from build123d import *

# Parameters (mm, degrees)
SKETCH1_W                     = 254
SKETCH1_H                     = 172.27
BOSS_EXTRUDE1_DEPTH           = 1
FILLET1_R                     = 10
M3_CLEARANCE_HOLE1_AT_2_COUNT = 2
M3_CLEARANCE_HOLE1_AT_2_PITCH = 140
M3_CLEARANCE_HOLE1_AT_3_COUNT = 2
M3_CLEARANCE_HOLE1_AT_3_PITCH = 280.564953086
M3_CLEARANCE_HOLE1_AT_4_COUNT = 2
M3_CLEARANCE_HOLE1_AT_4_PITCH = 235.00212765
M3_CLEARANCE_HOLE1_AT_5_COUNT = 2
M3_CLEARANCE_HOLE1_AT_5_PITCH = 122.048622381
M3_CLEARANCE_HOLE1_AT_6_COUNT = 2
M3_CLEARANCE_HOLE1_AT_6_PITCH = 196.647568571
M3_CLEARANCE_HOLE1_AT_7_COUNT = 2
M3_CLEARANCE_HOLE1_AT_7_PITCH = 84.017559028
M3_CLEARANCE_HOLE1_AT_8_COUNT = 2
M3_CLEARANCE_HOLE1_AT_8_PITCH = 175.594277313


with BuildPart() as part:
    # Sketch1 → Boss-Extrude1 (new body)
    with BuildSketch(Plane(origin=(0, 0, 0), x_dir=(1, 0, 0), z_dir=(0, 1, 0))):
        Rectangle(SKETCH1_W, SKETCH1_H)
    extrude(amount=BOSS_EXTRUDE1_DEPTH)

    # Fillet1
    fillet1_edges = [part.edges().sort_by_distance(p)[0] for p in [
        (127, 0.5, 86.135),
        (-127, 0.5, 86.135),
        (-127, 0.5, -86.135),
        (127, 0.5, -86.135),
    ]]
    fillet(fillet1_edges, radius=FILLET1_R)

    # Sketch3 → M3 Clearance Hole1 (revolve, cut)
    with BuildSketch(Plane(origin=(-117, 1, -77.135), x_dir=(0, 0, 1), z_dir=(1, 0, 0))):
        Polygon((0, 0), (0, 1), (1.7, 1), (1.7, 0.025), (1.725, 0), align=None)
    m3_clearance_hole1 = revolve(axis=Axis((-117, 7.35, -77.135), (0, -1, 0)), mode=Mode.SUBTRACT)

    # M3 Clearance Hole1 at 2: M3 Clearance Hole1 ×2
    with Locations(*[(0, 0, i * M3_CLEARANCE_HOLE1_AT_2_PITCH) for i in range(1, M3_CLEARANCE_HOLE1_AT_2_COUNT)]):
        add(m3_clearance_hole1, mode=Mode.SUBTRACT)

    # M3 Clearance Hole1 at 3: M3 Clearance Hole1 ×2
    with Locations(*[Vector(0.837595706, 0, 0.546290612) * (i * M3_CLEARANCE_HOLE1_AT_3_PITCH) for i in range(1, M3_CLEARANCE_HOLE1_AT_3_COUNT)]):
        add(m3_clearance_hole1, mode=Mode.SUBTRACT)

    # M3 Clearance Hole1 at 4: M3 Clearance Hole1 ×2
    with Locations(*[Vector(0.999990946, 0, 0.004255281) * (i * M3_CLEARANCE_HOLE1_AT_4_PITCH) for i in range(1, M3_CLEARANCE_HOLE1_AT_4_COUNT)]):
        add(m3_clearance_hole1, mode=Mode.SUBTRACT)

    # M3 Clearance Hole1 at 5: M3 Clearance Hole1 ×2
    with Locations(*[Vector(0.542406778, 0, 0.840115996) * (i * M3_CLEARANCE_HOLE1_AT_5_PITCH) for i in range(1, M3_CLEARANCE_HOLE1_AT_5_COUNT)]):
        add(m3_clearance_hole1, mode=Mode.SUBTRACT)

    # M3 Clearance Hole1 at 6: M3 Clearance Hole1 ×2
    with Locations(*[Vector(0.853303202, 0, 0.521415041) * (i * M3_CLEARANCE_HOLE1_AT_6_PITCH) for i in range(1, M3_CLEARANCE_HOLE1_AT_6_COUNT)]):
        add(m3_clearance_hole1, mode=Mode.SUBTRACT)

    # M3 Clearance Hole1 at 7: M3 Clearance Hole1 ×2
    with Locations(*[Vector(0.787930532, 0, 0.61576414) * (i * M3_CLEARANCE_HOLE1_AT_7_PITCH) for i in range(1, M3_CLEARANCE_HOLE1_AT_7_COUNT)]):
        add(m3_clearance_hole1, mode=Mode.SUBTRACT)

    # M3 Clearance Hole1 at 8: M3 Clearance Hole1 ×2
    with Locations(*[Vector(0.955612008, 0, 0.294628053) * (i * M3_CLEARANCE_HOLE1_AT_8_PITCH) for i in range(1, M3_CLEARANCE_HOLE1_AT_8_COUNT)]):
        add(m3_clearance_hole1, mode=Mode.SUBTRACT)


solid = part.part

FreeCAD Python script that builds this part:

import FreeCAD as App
import Part
import Sketcher
Q = App.Units.Quantity


def edges_at(feature, points):
    """Names of the edges that pass closest to the given points."""
    edges = feature.Shape.Edges
    near = lambda p: min(range(len(edges)), key=lambda i: edges[i].distToShape(Part.Vertex(*p))[0])
    return sorted({f"Edge{near(p) + 1}" for p in points})

doc = App.newDocument("Part")
body = doc.addObject("PartDesign::Body", "Body")

# Sketch on XZ plane
sketch1 = body.newObject("Sketcher::SketchObject", "Sketch")
sketch1.AttachmentSupport = (doc.getObject("XZ_Plane"), [""])
sketch1.MapMode = "FlatFace"
sketch1.addGeometry([
    Part.LineSegment(App.Vector(-127, -86, 0), App.Vector(-127, 86, 0)),
    Part.LineSegment(App.Vector(-127, 86, 0), App.Vector(127, 86, 0)),
    Part.LineSegment(App.Vector(127, 86, 0), App.Vector(127, -86, 0)),
    Part.LineSegment(App.Vector(127, -86, 0), App.Vector(-127, -86, 0)),
], False)
sketch1.addConstraint([
    Sketcher.Constraint("Coincident", 0, 2, 1, 1),
    Sketcher.Constraint("Coincident", 1, 2, 2, 1),
    Sketcher.Constraint("Coincident", 2, 2, 3, 1),
    Sketcher.Constraint("Coincident", 3, 2, 0, 1),
    Sketcher.Constraint("Vertical", 0),
    Sketcher.Constraint("Horizontal", 1),
    Sketcher.Constraint("Vertical", 2),
    Sketcher.Constraint("Horizontal", 3),
    Sketcher.Constraint("Symmetric", 0, 2, 2, 2, -1, 1),
    Sketcher.Constraint("DistanceX", 1, 1, 1, 2, Q("254 mm")),
    Sketcher.Constraint("DistanceY", 0, 1, 0, 2, Q("172.27 mm")),
])
pad1 = body.newObject("PartDesign::Pad", "Pad")
pad1.Profile = sketch1
pad1.Length = 1
pad1.Reversed = True
doc.recompute()

fillet = body.newObject("PartDesign::Fillet", "Fillet")
fillet.Base = (pad1, edges_at(pad1, [
    (127, 0.5, 86.135),
    (-127, 0.5, 86.135),
    (-127, 0.5, -86.135),
    (127, 0.5, -86.135),
]))
fillet.Radius = 10

# Sketch on YZ plane
sketch2 = body.newObject("Sketcher::SketchObject", "Sketch001")
sketch2.AttachmentSupport = (doc.getObject("YZ_Plane"), [""])
sketch2.MapMode = "FlatFace"
sketch2.AttachmentOffset = App.Placement(App.Vector(0, 0, -117), App.Rotation())
sketch2.addGeometry([
    Part.LineSegment(App.Vector(0, -77.135, 0), App.Vector(1, -77.135, 0)),  # 0
    Part.LineSegment(App.Vector(1, -77.135, 0), App.Vector(1, -75.41, 0)),  # 1
    Part.LineSegment(App.Vector(1, -75.41, 0), App.Vector(0.975, -75.435, 0)),  # 2
    Part.LineSegment(App.Vector(0.975, -75.435, 0), App.Vector(0, -75.435, 0)),  # 3
    Part.LineSegment(App.Vector(0, -75.435, 0), App.Vector(0, -77.135, 0)),  # 4
], False)
sketch2.addGeometry(Part.LineSegment(App.Vector(1, -77.135, 0), App.Vector(0, -77.135, 0)), True)  # axis
sketch2.addConstraint([
    Sketcher.Constraint("Coincident", 0, 2, 1, 1),
    Sketcher.Constraint("Coincident", 1, 2, 2, 1),
    Sketcher.Constraint("Coincident", 2, 2, 3, 1),
    Sketcher.Constraint("Coincident", 3, 2, 4, 1),
    Sketcher.Constraint("Coincident", 4, 2, 0, 1),
    Sketcher.Constraint("Horizontal", 0),
    Sketcher.Constraint("Vertical", 1),
    Sketcher.Constraint("Horizontal", 3),
    Sketcher.Constraint("Vertical", 4),
    Sketcher.Constraint("Horizontal", 5),
    Sketcher.Constraint("Coincident", 5, 1, 0, 2),
    Sketcher.Constraint("PointOnObject", 3, 2, -2),
    Sketcher.Constraint("PointOnObject", 5, 2, -2),
    Sketcher.Constraint("DistanceX", 0, 1, 0, 2, Q("1 mm")),
    Sketcher.Constraint("Angle", 2, Q("-135 deg")),
    Sketcher.Constraint("DistanceY", 4, 2, 4, 1, Q("1.7 mm")),
    Sketcher.Constraint("DistanceX", 3, 2, 3, 1, Q("0.975 mm")),
    Sketcher.Constraint("DistanceY", 1, 2, -1, 1, Q("75.41 mm")),
])
groove = body.newObject("PartDesign::Groove", "Groove")
groove.Profile = sketch2
groove.ReferenceAxis = (sketch2, ["Axis0"])
groove.Angle = 360
doc.recompute()

linearpattern = body.newObject("PartDesign::LinearPattern", "LinearPattern")
linearpattern.Originals = [groove]
linearpattern.Direction = (doc.getObject("Z_Axis"), [""])
linearpattern.Mode = "offset"
linearpattern.Offset = 140
linearpattern.Occurrences = 2
body.Tip = linearpattern
doc.recompute()

datumline = body.newObject("PartDesign::Line", "DatumLine")
datumline.Placement = App.Placement(App.Vector(0, 0, 0), App.Rotation(App.Vector(0, 0, 1), App.Vector(0.837595706, 0, 0.546290612)))
linearpattern2 = body.newObject("PartDesign::LinearPattern", "LinearPattern001")
linearpattern2.Originals = [groove]
linearpattern2.Direction = (datumline, [""])
linearpattern2.Mode = "offset"
linearpattern2.Offset = 280.564953
linearpattern2.Occurrences = 2
body.Tip = linearpattern2
doc.recompute()

datumline2 = body.newObject("PartDesign::Line", "DatumLine001")
datumline2.Placement = App.Placement(App.Vector(0, 0, 0), App.Rotation(App.Vector(0, 0, 1), App.Vector(0.999990946, 0, 0.004255281)))
linearpattern3 = body.newObject("PartDesign::LinearPattern", "LinearPattern002")
linearpattern3.Originals = [groove]
linearpattern3.Direction = (datumline2, [""])
linearpattern3.Mode = "offset"
linearpattern3.Offset = 235.002128
linearpattern3.Occurrences = 2
body.Tip = linearpattern3
doc.recompute()

datumline3 = body.newObject("PartDesign::Line", "DatumLine002")
datumline3.Placement = App.Placement(App.Vector(0, 0, 0), App.Rotation(App.Vector(0, 0, 1), App.Vector(0.542406778, 0, 0.840115996)))
linearpattern4 = body.newObject("PartDesign::LinearPattern", "LinearPattern003")
linearpattern4.Originals = [groove]
linearpattern4.Direction = (datumline3, [""])
linearpattern4.Mode = "offset"
linearpattern4.Offset = 122.048622
linearpattern4.Occurrences = 2
body.Tip = linearpattern4
doc.recompute()

datumline4 = body.newObject("PartDesign::Line", "DatumLine003")
datumline4.Placement = App.Placement(App.Vector(0, 0, 0), App.Rotation(App.Vector(0, 0, 1), App.Vector(0.853303202, 0, 0.521415041)))
linearpattern5 = body.newObject("PartDesign::LinearPattern", "LinearPattern004")
linearpattern5.Originals = [groove]
linearpattern5.Direction = (datumline4, [""])
linearpattern5.Mode = "offset"
linearpattern5.Offset = 196.647569
linearpattern5.Occurrences = 2
body.Tip = linearpattern5
doc.recompute()

datumline5 = body.newObject("PartDesign::Line", "DatumLine004")
datumline5.Placement = App.Placement(App.Vector(0, 0, 0), App.Rotation(App.Vector(0, 0, 1), App.Vector(0.787930532, 0, 0.61576414)))
linearpattern6 = body.newObject("PartDesign::LinearPattern", "LinearPattern005")
linearpattern6.Originals = [groove]
linearpattern6.Direction = (datumline5, [""])
linearpattern6.Mode = "offset"
linearpattern6.Offset = 84.017559
linearpattern6.Occurrences = 2
body.Tip = linearpattern6
doc.recompute()

datumline6 = body.newObject("PartDesign::Line", "DatumLine005")
datumline6.Placement = App.Placement(App.Vector(0, 0, 0), App.Rotation(App.Vector(0, 0, 1), App.Vector(0.955612008, 0, 0.294628053)))
linearpattern7 = body.newObject("PartDesign::LinearPattern", "LinearPattern006")
linearpattern7.Originals = [groove]
linearpattern7.Direction = (datumline6, [""])
linearpattern7.Mode = "offset"
linearpattern7.Offset = 175.594277
linearpattern7.Occurrences = 2
body.Tip = linearpattern7

doc.recompute()
